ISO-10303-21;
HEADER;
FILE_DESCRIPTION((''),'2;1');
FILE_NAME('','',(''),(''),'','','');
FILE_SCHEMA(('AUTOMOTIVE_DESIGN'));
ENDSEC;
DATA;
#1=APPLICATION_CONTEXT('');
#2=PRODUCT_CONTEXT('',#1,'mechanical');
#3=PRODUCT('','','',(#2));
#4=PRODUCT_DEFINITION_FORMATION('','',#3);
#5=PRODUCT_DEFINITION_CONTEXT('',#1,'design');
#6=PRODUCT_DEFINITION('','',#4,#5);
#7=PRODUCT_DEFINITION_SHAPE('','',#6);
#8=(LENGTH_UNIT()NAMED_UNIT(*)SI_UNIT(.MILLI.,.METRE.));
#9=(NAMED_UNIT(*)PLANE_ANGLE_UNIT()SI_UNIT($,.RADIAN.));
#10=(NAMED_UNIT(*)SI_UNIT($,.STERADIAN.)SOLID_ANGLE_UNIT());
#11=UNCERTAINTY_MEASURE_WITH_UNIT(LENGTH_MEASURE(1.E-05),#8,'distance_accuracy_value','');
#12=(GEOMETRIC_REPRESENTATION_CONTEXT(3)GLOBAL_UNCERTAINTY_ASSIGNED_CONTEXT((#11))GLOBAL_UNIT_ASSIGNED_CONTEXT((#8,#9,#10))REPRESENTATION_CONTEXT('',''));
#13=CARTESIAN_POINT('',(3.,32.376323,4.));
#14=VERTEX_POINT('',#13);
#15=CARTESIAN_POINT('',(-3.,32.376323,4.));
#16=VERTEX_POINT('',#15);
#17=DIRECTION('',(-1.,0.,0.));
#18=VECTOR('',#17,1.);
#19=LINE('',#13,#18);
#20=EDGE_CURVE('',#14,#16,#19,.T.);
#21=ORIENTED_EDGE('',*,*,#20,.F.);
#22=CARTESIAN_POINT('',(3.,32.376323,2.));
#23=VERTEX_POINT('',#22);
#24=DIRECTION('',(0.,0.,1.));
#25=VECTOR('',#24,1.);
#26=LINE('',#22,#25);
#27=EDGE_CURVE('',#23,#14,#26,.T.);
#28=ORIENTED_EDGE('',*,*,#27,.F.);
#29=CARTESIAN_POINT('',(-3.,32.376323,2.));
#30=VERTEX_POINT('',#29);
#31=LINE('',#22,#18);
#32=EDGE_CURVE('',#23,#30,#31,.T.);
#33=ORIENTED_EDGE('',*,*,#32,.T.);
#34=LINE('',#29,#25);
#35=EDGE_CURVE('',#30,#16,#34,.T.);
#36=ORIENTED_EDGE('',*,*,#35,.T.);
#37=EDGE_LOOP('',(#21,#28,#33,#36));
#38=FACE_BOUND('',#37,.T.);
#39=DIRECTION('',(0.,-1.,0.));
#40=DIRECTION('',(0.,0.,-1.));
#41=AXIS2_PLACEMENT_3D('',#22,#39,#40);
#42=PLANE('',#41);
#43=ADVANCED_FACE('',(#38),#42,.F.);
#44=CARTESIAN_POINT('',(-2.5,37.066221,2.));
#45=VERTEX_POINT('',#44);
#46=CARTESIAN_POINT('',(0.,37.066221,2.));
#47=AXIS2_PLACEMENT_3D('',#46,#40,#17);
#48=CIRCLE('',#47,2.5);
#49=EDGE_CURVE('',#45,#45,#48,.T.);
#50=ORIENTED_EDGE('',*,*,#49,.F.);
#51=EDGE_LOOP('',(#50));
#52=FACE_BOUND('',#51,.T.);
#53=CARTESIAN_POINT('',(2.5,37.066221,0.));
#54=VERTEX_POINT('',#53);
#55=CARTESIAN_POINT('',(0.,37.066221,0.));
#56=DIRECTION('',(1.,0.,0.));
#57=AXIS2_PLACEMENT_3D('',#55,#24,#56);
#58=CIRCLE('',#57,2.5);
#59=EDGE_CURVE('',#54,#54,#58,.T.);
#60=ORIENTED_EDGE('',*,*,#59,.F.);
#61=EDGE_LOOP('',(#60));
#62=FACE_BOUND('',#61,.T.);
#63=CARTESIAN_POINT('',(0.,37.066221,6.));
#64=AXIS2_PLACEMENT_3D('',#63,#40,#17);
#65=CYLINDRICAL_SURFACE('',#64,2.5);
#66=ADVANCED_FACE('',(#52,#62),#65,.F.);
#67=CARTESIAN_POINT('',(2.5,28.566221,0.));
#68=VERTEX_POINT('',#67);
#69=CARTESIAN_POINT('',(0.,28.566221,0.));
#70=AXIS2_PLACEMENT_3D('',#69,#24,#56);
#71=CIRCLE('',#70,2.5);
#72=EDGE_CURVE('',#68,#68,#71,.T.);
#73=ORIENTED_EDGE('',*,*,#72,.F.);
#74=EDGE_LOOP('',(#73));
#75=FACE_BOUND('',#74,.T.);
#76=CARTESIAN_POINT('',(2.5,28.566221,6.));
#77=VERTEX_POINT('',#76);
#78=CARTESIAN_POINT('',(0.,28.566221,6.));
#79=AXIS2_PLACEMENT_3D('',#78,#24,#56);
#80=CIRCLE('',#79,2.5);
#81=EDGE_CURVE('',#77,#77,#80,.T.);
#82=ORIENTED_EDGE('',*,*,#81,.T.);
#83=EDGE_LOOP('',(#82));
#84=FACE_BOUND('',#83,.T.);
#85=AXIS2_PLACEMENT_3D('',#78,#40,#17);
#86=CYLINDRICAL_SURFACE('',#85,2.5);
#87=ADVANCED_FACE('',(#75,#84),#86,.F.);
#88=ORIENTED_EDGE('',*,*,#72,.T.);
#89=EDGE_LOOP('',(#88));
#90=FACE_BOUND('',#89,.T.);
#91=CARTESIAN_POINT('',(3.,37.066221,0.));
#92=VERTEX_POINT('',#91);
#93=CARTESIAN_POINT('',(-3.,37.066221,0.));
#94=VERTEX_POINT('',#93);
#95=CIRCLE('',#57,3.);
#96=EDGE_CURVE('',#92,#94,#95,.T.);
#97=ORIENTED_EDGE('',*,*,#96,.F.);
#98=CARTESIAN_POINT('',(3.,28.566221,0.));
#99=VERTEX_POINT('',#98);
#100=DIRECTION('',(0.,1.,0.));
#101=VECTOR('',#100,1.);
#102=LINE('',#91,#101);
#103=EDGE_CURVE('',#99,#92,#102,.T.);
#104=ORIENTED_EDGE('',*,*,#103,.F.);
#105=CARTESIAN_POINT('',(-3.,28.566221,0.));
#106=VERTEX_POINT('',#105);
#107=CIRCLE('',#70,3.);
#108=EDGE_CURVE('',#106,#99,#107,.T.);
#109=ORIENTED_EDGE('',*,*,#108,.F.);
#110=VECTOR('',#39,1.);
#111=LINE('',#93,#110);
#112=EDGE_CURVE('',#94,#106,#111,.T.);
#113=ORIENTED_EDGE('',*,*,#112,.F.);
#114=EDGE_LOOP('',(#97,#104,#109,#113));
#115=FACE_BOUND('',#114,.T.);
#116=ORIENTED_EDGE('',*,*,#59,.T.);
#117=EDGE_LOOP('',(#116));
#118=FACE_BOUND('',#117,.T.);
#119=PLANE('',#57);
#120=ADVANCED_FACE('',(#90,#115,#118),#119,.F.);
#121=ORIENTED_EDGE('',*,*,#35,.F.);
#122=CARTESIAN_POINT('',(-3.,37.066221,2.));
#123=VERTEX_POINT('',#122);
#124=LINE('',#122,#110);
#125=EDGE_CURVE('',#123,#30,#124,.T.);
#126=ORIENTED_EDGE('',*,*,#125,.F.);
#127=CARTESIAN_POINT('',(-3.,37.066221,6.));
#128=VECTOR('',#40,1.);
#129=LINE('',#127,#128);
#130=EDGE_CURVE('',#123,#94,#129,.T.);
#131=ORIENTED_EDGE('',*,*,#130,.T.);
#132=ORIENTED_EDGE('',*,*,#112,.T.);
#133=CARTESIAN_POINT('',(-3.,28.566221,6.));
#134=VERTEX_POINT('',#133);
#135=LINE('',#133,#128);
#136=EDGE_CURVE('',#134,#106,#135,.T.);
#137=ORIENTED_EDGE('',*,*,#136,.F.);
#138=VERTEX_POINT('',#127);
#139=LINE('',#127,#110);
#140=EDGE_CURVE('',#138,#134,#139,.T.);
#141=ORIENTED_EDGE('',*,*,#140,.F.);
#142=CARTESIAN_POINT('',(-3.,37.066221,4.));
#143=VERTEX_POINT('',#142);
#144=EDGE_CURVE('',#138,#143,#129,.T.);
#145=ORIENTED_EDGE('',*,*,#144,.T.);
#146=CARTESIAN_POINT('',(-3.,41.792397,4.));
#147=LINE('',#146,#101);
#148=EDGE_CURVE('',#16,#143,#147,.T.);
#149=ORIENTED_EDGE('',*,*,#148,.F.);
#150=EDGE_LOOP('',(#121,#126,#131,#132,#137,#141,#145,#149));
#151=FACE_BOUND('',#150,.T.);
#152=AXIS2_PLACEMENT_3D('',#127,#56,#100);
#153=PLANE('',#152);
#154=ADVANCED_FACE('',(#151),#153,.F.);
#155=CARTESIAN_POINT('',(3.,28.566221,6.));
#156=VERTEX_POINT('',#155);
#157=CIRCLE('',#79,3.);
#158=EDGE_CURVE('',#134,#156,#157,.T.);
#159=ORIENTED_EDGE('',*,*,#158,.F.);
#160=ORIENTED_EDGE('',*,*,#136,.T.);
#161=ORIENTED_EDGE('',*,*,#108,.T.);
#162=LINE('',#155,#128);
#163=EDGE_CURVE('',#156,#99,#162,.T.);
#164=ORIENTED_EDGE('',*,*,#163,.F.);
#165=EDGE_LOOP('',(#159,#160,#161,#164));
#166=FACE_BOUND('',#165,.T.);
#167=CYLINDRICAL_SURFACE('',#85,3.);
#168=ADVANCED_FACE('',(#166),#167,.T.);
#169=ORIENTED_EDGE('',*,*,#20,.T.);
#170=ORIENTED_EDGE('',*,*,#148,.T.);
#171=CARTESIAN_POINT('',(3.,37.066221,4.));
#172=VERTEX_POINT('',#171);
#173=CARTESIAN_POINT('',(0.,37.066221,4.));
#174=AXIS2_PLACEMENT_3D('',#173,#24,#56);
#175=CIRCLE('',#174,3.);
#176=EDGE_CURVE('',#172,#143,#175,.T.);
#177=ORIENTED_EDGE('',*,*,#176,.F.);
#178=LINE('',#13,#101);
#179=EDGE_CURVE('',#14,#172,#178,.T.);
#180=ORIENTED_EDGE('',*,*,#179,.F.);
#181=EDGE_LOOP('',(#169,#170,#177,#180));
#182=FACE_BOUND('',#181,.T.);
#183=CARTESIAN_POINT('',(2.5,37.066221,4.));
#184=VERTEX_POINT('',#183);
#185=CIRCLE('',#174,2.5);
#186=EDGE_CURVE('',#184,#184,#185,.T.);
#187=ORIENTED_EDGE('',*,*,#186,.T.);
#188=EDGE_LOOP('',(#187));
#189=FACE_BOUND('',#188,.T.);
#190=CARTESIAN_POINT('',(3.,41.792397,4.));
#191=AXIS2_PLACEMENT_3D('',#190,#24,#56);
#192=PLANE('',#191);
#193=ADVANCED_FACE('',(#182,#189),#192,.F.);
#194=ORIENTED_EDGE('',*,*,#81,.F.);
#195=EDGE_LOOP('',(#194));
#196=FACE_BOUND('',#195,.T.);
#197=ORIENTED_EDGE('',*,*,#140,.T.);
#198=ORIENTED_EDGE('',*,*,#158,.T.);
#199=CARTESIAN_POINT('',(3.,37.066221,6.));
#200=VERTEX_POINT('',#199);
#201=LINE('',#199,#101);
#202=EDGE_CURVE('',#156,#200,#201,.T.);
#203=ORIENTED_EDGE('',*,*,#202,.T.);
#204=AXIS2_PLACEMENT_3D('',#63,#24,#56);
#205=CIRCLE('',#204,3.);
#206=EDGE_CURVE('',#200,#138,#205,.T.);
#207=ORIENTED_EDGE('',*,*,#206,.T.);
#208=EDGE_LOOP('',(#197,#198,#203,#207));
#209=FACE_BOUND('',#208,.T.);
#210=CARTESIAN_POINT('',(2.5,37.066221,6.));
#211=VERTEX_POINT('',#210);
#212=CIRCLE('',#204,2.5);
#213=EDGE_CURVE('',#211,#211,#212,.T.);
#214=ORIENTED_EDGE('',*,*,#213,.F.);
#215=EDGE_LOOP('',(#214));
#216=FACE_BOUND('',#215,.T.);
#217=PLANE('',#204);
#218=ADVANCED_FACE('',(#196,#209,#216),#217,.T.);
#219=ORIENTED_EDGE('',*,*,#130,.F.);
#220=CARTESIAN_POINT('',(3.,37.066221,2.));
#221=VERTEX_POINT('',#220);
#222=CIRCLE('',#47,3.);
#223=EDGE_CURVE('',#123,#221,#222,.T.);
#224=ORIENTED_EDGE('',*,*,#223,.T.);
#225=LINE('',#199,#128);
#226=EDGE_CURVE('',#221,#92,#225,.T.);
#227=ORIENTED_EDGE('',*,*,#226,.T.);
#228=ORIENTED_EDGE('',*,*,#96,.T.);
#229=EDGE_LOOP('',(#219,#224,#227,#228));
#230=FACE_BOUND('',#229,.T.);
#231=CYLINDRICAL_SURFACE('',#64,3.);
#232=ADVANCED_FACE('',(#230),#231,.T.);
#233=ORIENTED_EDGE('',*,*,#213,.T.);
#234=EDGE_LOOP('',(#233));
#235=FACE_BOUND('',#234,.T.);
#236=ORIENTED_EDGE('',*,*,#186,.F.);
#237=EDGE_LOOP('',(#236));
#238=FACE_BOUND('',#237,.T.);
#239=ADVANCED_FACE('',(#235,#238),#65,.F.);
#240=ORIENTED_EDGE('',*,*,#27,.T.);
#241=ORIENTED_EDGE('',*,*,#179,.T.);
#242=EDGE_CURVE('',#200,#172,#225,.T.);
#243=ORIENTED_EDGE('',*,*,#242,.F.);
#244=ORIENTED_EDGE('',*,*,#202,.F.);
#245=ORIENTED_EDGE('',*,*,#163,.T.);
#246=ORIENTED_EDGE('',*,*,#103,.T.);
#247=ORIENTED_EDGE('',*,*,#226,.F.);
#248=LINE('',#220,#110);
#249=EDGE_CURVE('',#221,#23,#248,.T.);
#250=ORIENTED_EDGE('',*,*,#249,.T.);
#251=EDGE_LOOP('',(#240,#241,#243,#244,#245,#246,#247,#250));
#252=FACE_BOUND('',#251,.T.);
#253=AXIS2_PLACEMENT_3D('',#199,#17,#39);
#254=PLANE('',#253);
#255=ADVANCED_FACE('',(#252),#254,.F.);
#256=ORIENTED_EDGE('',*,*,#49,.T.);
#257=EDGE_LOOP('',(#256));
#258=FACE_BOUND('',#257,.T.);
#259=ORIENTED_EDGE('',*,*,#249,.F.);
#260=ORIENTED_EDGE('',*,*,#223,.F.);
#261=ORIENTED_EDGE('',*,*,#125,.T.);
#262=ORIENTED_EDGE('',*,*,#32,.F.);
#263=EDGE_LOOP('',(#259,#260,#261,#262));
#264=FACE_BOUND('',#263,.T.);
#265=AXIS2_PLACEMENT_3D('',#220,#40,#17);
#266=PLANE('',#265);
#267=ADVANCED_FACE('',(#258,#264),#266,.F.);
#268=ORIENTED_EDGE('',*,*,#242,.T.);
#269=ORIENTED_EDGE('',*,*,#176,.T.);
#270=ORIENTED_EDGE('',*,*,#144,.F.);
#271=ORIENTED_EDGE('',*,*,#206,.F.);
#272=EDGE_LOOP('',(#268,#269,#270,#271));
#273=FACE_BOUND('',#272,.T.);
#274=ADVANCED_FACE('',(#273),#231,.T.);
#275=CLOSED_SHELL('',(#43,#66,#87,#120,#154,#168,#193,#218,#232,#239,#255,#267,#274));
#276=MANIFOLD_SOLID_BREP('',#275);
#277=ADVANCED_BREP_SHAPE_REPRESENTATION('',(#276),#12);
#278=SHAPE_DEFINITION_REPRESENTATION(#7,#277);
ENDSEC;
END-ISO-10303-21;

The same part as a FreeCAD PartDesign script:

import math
import FreeCAD as App
import Part
import Sketcher
from FreeCAD import Vector
Q = App.Units.Quantity


def add_polygon(sketch, points):
    """Adds a closed chain of lines whose ends are joined by coincident constraints."""
    first, n = sketch.GeometryCount, len(points)
    for a, b in zip(points, points[1:] + points[:1]):
        sketch.addGeometry(Part.LineSegment(App.Vector(*a, 0), App.Vector(*b, 0)), False)
    for i in range(n):
        sketch.addConstraint(Sketcher.Constraint("Coincident", first + i, 2, first + (i + 1) % n, 1))

doc = App.newDocument("Part")
body = doc.addObject("PartDesign::Body", "Body")

sketch1 = body.newObject("Sketcher::SketchObject", "Sketch")
sketch1.AttachmentSupport = (doc.getObject("XY_Plane"), [""])
sketch1.MapMode = "FlatFace"
sketch1.addGeometry(Part.LineSegment(Vector(3, 28.6, 0), Vector(3, 37.1, 0)), False)
sketch1.addGeometry(Part.ArcOfCircle(Part.Circle(Vector(0, 37.1, 0), Vector(0, 0, 1), 3), math.radians(0), math.radians(180)), False)
sketch1.addGeometry(Part.LineSegment(Vector(-3, 37.1, 0), Vector(-3, 28.6, 0)), False)
sketch1.addGeometry(Part.ArcOfCircle(Part.Circle(Vector(0, 28.6, 0), Vector(0, 0, 1), 3), math.radians(180), math.radians(360)), False)
sketch1.addGeometry(Part.Circle(Vector(0, 28.6, 0), Vector(0, 0, 1), 2.5), False)
sketch1.addGeometry(Part.Circle(Vector(0, 37.1, 0), Vector(0, 0, 1), 2.5), False)
sketch1.addConstraint(Sketcher.Constraint("Tangent", 0, 2, 1, 1))
sketch1.addConstraint(Sketcher.Constraint("Tangent", 1, 2, 2, 1))
sketch1.addConstraint(Sketcher.Constraint("Tangent", 2, 2, 3, 1))
sketch1.addConstraint(Sketcher.Constraint("Tangent", 3, 2, 0, 1))
sketch1.addConstraint(Sketcher.Constraint("Vertical", 0))
sketch1.addConstraint(Sketcher.Constraint("Vertical", 2))
sketch1.addConstraint(Sketcher.Constraint("Coincident", 4, 3, 3, 3))
sketch1.addConstraint(Sketcher.Constraint("Coincident", 5, 3, 1, 3))
sketch1.addConstraint(Sketcher.Constraint("Equal", 4, 5))
sketch1.addConstraint(Sketcher.Constraint("PointOnObject", 1, 3, -2))
sketch1.addConstraint(Sketcher.Constraint("Diameter", 4, Q("5 mm")))
sketch1.addConstraint(Sketcher.Constraint("Radius", 1, Q("3 mm")))
sketch1.addConstraint(Sketcher.Constraint("DistanceY", 0, 1, 0, 2, Q("8.5 mm")))
sketch1.addConstraint(Sketcher.Constraint("DistanceY", -1, 1, 1, 3, Q("37.066221 mm")))
pad1 = body.newObject("PartDesign::Pad", "Pad")
pad1.Profile = sketch1
pad1.Length = 6

sketch2 = body.newObject("Sketcher::SketchObject", "Sketch001")
sketch2.AttachmentSupport = (doc.getObject("YZ_Plane"), [""])
sketch2.MapMode = "FlatFace"
sketch2.AttachmentOffset = App.Placement(Vector(0, 0, -3), App.Rotation())
add_polygon(sketch2, [(41.8, 2), (32.4, 2), (32.4, 4), (41.8, 4)])
sketch2.addConstraint(Sketcher.Constraint("Horizontal", 0))
sketch2.addConstraint(Sketcher.Constraint("Vertical", 1))
sketch2.addConstraint(Sketcher.Constraint("Horizontal", 2))
sketch2.addConstraint(Sketcher.Constraint("Vertical", 3))
sketch2.addConstraint(Sketcher.Constraint("DistanceY", 1, 1, 1, 2, Q("2 mm")))
sketch2.addConstraint(Sketcher.Constraint("DistanceY", -1, 1, 0, 2, Q("2 mm")))
sketch2.addConstraint(Sketcher.Constraint("DistanceX", 0, 2, 0, 1, Q("9.416074 mm")))
sketch2.addConstraint(Sketcher.Constraint("DistanceX", -1, 1, 0, 2, Q("32.376323 mm")))
pocket1 = body.newObject("PartDesign::Pocket", "Pocket")
pocket1.Profile = sketch2
pocket1.Type = "ThroughAll"
pocket1.Reversed = True

doc.recompute()
